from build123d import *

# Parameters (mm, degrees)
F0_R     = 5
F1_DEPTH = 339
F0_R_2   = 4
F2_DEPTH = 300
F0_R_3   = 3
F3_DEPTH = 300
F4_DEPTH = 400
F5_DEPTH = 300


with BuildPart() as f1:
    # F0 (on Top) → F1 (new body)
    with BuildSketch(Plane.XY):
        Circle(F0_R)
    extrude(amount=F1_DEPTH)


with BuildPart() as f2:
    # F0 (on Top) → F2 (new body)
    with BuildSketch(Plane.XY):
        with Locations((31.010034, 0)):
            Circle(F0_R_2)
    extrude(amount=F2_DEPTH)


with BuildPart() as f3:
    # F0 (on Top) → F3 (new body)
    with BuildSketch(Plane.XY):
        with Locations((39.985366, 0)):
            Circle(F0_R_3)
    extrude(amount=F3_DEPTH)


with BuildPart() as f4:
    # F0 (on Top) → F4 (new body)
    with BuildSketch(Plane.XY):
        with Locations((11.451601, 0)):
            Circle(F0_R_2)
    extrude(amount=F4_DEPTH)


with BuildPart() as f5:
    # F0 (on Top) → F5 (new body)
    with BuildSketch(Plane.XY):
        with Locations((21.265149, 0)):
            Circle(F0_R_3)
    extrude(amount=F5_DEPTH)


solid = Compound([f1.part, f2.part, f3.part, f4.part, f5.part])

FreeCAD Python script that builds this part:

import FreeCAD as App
import Part
import Sketcher
Q = App.Units.Quantity

doc = App.newDocument("Part")
body = doc.addObject("PartDesign::Body", "Body")

# Sketch on XY plane
sketch1 = body.newObject("Sketcher::SketchObject", "Sketch")
sketch1.AttachmentSupport = (doc.getObject("XY_Plane"), [""])
sketch1.MapMode = "FlatFace"
sketch1.addGeometry(Part.Circle(App.Vector(0, 0, 0), App.Vector(0, 0, 1), 5), False)
sketch1.addConstraint([
    Sketcher.Constraint("Coincident", 0, 3, -1, 1),
    Sketcher.Constraint("Diameter", 0, Q("10 mm")),
])
pad1 = body.newObject("PartDesign::Pad", "Pad")
pad1.Profile = sketch1
pad1.Length = 339
body2 = doc.addObject("PartDesign::Body", "Body001")

# Sketch on XY plane
sketch2 = body2.newObject("Sketcher::SketchObject", "Sketch001")
sketch2.AttachmentSupport = (doc.getObject("XY_Plane001"), [""])
sketch2.MapMode = "FlatFace"
sketch2.addGeometry(Part.Circle(App.Vector(31.010034, 0, 0), App.Vector(0, 0, 1), 4), False)
sketch2.addConstraint([
    Sketcher.Constraint("PointOnObject", 0, 3, -1),
    Sketcher.Constraint("Diameter", 0, Q("8 mm")),
    Sketcher.Constraint("DistanceX", -1, 1, 0, 3, Q("31.010034 mm")),
])
pad2 = body2.newObject("PartDesign::Pad", "Pad001")
pad2.Profile = sketch2
pad2.Length = 300
body3 = doc.addObject("PartDesign::Body", "Body002")

# Sketch on XY plane
sketch3 = body3.newObject("Sketcher::SketchObject", "Sketch002")
sketch3.AttachmentSupport = (doc.getObject("XY_Plane002"), [""])
sketch3.MapMode = "FlatFace"
sketch3.addGeometry(Part.Circle(App.Vector(39.985366, 0, 0), App.Vector(0, 0, 1), 3), False)
sketch3.addConstraint([
    Sketcher.Constraint("PointOnObject", 0, 3, -1),
    Sketcher.Constraint("Diameter", 0, Q("6 mm")),
    Sketcher.Constraint("DistanceX", -1, 1, 0, 3, Q("39.985366 mm")),
])
pad3 = body3.newObject("PartDesign::Pad", "Pad002")
pad3.Profile = sketch3
pad3.Length = 300
body4 = doc.addObject("PartDesign::Body", "Body003")

# Sketch on XY plane
sketch4 = body4.newObject("Sketcher::SketchObject", "Sketch003")
sketch4.AttachmentSupport = (doc.getObject("XY_Plane003"), [""])
sketch4.MapMode = "FlatFace"
sketch4.addGeometry(Part.Circle(App.Vector(11.451601, 0, 0), App.Vector(0, 0, 1), 4), False)
sketch4.addConstraint([
    Sketcher.Constraint("PointOnObject", 0, 3, -1),
    Sketcher.Constraint("Diameter", 0, Q("8 mm")),
    Sketcher.Constraint("DistanceX", -1, 1, 0, 3, Q("11.451601 mm")),
])
pad4 = body4.newObject("PartDesign::Pad", "Pad003")
pad4.Profile = sketch4
pad4.Length = 400
body5 = doc.addObject("PartDesign::Body", "Body004")

# Sketch on XY plane
sketch5 = body5.newObject("Sketcher::SketchObject", "Sketch004")
sketch5.AttachmentSupport = (doc.getObject("XY_Plane004"), [""])
sketch5.MapMode = "FlatFace"
sketch5.addGeometry(Part.Circle(App.Vector(21.265149, 0, 0), App.Vector(0, 0, 1), 3), False)
sketch5.addConstraint([
    Sketcher.Constraint("PointOnObject", 0, 3, -1),
    Sketcher.Constraint("Diameter", 0, Q("6 mm")),
    Sketcher.Constraint("DistanceX", -1, 1, 0, 3, Q("21.265149 mm")),
])
pad5 = body5.newObject("PartDesign::Pad", "Pad004")
pad5.Profile = sketch5
pad5.Length = 300

doc.recompute()
